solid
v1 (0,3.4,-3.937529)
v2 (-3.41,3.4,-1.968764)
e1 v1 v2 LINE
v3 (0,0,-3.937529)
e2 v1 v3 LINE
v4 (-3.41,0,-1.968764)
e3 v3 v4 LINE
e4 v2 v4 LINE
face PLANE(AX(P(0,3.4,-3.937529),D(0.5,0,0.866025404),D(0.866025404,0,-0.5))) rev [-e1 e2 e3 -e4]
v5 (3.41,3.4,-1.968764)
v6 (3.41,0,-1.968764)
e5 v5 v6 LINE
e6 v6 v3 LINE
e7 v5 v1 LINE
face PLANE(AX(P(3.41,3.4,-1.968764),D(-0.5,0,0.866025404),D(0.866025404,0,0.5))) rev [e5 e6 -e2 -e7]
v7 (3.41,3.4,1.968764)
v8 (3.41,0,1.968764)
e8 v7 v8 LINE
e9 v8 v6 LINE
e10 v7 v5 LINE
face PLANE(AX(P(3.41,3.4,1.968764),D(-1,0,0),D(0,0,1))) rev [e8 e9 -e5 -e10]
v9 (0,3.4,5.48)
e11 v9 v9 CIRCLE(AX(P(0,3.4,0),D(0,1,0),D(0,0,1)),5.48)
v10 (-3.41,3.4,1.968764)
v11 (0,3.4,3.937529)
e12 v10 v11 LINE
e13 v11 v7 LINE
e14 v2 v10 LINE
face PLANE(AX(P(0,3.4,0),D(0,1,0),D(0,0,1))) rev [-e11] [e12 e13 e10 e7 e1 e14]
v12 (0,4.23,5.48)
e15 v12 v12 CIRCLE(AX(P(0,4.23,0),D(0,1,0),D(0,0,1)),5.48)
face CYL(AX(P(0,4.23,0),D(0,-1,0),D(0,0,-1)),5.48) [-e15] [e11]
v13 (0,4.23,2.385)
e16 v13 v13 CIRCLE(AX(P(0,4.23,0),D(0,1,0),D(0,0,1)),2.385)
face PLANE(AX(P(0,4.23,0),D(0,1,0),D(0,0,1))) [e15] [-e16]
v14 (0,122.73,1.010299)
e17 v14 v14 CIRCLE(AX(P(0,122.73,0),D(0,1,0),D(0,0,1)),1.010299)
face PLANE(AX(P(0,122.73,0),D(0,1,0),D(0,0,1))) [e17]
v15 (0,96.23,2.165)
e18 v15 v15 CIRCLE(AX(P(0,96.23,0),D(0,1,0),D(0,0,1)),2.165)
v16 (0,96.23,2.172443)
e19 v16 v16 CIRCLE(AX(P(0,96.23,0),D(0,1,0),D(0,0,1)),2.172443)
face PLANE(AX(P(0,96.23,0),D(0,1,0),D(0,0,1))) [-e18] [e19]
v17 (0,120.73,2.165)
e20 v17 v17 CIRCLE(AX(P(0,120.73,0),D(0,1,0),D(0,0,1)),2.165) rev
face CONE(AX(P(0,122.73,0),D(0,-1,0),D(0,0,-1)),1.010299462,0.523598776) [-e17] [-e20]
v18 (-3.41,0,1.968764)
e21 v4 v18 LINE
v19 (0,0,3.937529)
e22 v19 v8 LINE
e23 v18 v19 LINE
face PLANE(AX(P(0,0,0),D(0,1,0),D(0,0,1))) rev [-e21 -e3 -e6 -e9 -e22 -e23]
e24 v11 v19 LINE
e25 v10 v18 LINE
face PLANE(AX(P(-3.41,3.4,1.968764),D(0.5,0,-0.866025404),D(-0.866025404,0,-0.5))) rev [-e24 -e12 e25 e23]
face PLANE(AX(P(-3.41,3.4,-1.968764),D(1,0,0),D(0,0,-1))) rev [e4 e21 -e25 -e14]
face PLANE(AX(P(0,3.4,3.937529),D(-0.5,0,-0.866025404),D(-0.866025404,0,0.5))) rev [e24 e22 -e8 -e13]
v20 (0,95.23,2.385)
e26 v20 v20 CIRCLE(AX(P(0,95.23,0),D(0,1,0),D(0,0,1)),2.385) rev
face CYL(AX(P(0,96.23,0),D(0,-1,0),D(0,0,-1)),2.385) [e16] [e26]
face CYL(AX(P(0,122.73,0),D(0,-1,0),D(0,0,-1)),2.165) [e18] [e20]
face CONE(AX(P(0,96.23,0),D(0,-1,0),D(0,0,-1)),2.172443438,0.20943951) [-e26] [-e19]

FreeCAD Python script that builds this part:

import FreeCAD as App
import Part
import Sketcher
from FreeCAD import Vector
Q = App.Units.Quantity


def edges_at(feature, points):
    """Names of the edges that pass closest to the given points."""
    edges = feature.Shape.Edges
    near = lambda p: min(range(len(edges)), key=lambda i: edges[i].distToShape(Part.Vertex(*p))[0])
    return sorted({f"Edge{near(p) + 1}" for p in points})

doc = App.newDocument("Part")
body = doc.addObject("PartDesign::Body", "Body")

# Sketch on XZ plane
sketch1 = body.newObject("Sketcher::SketchObject", "Sketch")
sketch1.AttachmentSupport = (doc.getObject("XZ_Plane"), [""])
sketch1.MapMode = "FlatFace"
sketch1.addGeometry(Part.LineSegment(Vector(0, 3.9, 0), Vector(3.4, 2, 0)), False)
sketch1.addGeometry(Part.LineSegment(Vector(3.4, 2, 0), Vector(3.4, -2, 0)), False)
sketch1.addGeometry(Part.LineSegment(Vector(3.4, -2, 0), Vector(0, -3.9, 0)), False)
sketch1.addGeometry(Part.LineSegment(Vector(0, -3.9, 0), Vector(-3.4, -2, 0)), False)
sketch1.addGeometry(Part.LineSegment(Vector(-3.4, -2, 0), Vector(-3.4, 2, 0)), False)
sketch1.addGeometry(Part.LineSegment(Vector(-3.4, 2, 0), Vector(0, 3.9, 0)), False)
sketch1.addConstraint(Sketcher.Constraint("Coincident", 0, 2, 1, 1))
sketch1.addConstraint(Sketcher.Constraint("Coincident", 1, 2, 2, 1))
sketch1.addConstraint(Sketcher.Constraint("Coincident", 2, 2, 3, 1))
sketch1.addConstraint(Sketcher.Constraint("Coincident", 3, 2, 4, 1))
sketch1.addConstraint(Sketcher.Constraint("Coincident", 4, 2, 5, 1))
sketch1.addConstraint(Sketcher.Constraint("Coincident", 5, 2, 0, 1))
sketch1.addConstraint(Sketcher.Constraint("Vertical", 1))
sketch1.addConstraint(Sketcher.Constraint("Vertical", 4))
sketch1.addConstraint(Sketcher.Constraint("Symmetric", 0, 2, 3, 2, -1, 1))
sketch1.addConstraint(Sketcher.Constraint("Symmetric", 2, 2, 5, 2, -1, 1))
sketch1.addConstraint(Sketcher.Constraint("PointOnObject", 2, 2, -2))
sketch1.addConstraint(Sketcher.Constraint("Parallel", 2, 5))
sketch1.addConstraint(Sketcher.Constraint("Horizontal", 1, 2, 3, 2))
sketch1.addConstraint(Sketcher.Constraint("Angle", 0, Q("-30 deg")))
sketch1.addConstraint(Sketcher.Constraint("DistanceX", -1, 1, 0, 2, Q("3.41 mm")))
sketch1.addConstraint(Sketcher.Constraint("DistanceY", 1, 2, 1, 1, Q("3.937529 mm")))
pad1 = body.newObject("PartDesign::Pad", "Pad")
pad1.Profile = sketch1
pad1.Length = 3.4
pad1.Reversed = True

# Sketch on XZ plane
sketch2 = body.newObject("Sketcher::SketchObject", "Sketch001")
sketch2.AttachmentSupport = (doc.getObject("XZ_Plane"), [""])
sketch2.MapMode = "FlatFace"
sketch2.AttachmentOffset = App.Placement(Vector(0, 0, -3.4), App.Rotation())
sketch2.addGeometry(Part.Circle(Vector(0, 0, 0), Vector(0, 0, 1), 5), False)
sketch2.addConstraint(Sketcher.Constraint("Coincident", 0, 3, -1, 1))
sketch2.addConstraint(Sketcher.Constraint("Diameter", 0, Q("10.96 mm")))
pad2 = body.newObject("PartDesign::Pad", "Pad001")
pad2.Profile = sketch2
pad2.Length = 0.83
pad2.Reversed = True

# Sketch on XZ plane
sketch3 = body.newObject("Sketcher::SketchObject", "Sketch002")
sketch3.AttachmentSupport = (doc.getObject("XZ_Plane"), [""])
sketch3.MapMode = "FlatFace"
sketch3.AttachmentOffset = App.Placement(Vector(0, 0, -4.23), App.Rotation())
sketch3.addGeometry(Part.Circle(Vector(0, 0, 0), Vector(0, 0, 1), 2.4), False)
sketch3.addConstraint(Sketcher.Constraint("Coincident", 0, 3, -1, 1))
sketch3.addConstraint(Sketcher.Constraint("Diameter", 0, Q("4.77 mm")))
pad3 = body.newObject("PartDesign::Pad", "Pad002")
pad3.Profile = sketch3
pad3.Length = 92
pad3.Reversed = True

# Sketch on XZ plane
sketch4 = body.newObject("Sketcher::SketchObject", "Sketch003")
sketch4.AttachmentSupport = (doc.getObject("XZ_Plane"), [""])
sketch4.MapMode = "FlatFace"
sketch4.AttachmentOffset = App.Placement(Vector(0, 0, -96.23), App.Rotation())
sketch4.addGeometry(Part.Circle(Vector(0, 0, 0), Vector(0, 0, 1), 2.2), False)
sketch4.addConstraint(Sketcher.Constraint("Coincident", 0, 3, -1, 1))
sketch4.addConstraint(Sketcher.Constraint("Diameter", 0, Q("4.33 mm")))
pad4 = body.newObject("PartDesign::Pad", "Pad003")
pad4.Profile = sketch4
pad4.Length = 26.5
pad4.Reversed = True
doc.recompute()

chamfer = body.newObject("PartDesign::Chamfer", "Chamfer")
chamfer.Base = (pad4, edges_at(pad4, [(-2.165, 122.73, 0)]))
chamfer.ChamferType = "Two distances"
chamfer.Size = 2
chamfer.Size2 = 1.154701
doc.recompute()

chamfer2 = body.newObject("PartDesign::Chamfer", "Chamfer001")
chamfer2.Base = (chamfer, edges_at(chamfer, [(-2.385, 96.23, 0)]))
chamfer2.ChamferType = "Two distances"
chamfer2.Size = 1
chamfer2.Size2 = 0.212557
chamfer2.FlipDirection = True

doc.recompute()
